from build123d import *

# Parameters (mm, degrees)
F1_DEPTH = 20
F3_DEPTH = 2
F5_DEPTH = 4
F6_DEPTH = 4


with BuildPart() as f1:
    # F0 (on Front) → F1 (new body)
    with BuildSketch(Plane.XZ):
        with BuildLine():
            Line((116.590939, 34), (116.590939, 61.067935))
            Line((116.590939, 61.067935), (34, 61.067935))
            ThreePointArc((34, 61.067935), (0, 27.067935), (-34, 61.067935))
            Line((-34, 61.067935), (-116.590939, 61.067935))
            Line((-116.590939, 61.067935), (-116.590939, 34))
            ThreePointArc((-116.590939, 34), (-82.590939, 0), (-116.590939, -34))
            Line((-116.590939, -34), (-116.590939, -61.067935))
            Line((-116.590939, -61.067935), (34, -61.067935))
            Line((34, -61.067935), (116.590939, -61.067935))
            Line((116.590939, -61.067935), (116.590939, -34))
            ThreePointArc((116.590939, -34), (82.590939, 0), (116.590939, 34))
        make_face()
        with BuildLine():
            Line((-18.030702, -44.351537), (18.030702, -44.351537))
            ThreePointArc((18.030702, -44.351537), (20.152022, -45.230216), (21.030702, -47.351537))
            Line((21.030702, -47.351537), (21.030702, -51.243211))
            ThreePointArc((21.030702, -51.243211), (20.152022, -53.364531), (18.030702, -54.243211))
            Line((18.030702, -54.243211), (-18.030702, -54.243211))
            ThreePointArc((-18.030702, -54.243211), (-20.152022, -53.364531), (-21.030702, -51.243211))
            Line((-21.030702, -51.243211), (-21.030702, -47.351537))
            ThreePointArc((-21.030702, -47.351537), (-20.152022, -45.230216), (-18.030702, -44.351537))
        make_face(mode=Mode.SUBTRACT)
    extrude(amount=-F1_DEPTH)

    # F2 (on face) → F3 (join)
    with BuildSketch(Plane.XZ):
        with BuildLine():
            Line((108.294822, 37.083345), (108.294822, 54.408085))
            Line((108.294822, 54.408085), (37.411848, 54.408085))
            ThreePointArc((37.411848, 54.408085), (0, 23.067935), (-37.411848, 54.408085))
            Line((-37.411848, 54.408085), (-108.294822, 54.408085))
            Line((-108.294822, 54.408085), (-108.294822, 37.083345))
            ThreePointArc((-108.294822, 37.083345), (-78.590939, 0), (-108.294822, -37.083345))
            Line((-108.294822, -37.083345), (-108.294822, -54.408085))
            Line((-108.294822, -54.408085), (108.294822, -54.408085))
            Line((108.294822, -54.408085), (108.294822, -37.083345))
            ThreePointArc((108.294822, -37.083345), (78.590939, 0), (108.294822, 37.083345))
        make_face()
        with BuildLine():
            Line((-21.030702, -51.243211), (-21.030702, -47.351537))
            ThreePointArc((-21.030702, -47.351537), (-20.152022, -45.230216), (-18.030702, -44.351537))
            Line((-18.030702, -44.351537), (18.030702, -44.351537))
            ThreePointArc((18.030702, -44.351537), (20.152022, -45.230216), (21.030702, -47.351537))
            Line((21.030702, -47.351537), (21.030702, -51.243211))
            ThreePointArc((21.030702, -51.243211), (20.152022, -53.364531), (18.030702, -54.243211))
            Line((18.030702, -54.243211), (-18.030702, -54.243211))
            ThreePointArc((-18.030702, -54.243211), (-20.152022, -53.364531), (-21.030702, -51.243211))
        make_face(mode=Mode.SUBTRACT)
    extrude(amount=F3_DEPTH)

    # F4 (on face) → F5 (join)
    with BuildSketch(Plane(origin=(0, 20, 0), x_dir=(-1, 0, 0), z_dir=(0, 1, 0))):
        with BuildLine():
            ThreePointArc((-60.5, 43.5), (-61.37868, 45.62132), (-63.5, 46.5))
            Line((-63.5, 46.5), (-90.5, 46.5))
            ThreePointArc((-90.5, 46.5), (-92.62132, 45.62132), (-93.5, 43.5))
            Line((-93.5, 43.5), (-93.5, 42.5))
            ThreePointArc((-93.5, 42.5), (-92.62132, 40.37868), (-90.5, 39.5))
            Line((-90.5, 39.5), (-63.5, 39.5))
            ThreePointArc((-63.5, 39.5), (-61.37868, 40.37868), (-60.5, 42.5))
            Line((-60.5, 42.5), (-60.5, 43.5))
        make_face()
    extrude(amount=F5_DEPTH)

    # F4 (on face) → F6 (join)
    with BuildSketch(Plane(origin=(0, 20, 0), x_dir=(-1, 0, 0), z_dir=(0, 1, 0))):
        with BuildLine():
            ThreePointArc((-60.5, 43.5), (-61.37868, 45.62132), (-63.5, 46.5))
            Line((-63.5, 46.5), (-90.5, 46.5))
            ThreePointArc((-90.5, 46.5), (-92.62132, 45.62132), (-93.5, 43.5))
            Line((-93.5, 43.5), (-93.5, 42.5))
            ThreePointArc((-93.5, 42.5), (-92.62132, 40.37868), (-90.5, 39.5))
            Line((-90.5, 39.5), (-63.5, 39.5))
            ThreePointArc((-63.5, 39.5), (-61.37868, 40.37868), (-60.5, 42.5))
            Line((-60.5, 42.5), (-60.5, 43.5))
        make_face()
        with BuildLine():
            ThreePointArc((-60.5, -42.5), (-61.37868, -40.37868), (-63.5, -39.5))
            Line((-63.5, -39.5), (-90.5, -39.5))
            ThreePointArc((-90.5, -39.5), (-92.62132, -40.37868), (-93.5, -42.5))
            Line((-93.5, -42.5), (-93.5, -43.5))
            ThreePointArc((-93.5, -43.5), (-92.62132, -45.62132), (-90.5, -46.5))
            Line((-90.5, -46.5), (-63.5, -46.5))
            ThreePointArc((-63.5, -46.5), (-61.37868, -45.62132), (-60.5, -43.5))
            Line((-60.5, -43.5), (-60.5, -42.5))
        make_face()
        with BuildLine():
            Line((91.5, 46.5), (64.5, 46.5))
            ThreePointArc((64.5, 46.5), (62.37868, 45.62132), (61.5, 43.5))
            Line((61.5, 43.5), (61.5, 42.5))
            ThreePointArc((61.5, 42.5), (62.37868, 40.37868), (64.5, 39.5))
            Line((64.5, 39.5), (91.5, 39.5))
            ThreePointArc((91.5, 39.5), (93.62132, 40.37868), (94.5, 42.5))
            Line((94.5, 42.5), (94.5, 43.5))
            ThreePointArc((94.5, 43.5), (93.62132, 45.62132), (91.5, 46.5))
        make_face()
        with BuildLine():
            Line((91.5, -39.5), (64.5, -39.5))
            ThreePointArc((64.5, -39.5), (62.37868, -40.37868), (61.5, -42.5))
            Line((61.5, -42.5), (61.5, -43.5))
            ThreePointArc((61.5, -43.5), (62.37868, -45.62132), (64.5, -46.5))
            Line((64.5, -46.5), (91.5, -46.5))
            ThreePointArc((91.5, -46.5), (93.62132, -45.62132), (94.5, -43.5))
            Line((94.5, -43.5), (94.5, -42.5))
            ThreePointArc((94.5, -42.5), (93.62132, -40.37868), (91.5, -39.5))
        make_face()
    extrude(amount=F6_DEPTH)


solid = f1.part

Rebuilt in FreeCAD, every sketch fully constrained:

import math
import FreeCAD as App
import Part
import Sketcher
from FreeCAD import Vector

doc = App.newDocument("Part")
params = doc.addObject("Spreadsheet::Sheet", "Params")
for row, (alias, value) in enumerate([
    ("sketch1_radius", "34 mm"),
    ("sketch1_radius2", "2.999999 mm"),
    ("pad1_length", "20 mm"),
    ("sketch2_radius", "38 mm"),
    ("sketch2_radius2", "3.000001 mm"),
    ("pad2_length", "2 mm"),
    ("sketch3_radius", "3.000001 mm"),
    ("sketch3_width", "27 mm"),
    ("sketch3_height", "1 mm"),
    ("pad3_length", "4 mm"),
    ("sketch4_radius", "3.000001 mm"),
    ("sketch4_width", "27 mm"),
    ("sketch4_height", "1 mm"),
    ("pad4_length", "4 mm"),
], start=1):
    params.set(f"A{row}", alias)
    params.set(f"B{row}", "=" + value)
    params.setAlias(f"B{row}", alias)

body = doc.addObject("PartDesign::Body", "Body")

# Sketch on XZ plane
sketch1 = doc.addObject("Sketcher::SketchObject", "Sketch")
body.addObject(sketch1)
sketch1.AttachmentSupport = (doc.XZ_Plane, [""])
sketch1.MapMode = "FlatFace"
sketch1.addGeometry([
    Part.LineSegment(Vector(116.6, 34, 0), Vector(116.6, 61.1, 0)),  # 0
    Part.LineSegment(Vector(116.6, 61.1, 0), Vector(34, 61.1, 0)),  # 1
    Part.ArcOfCircle(Part.Circle(Vector(0, 61.1, 0), Vector(0, 0, 1), 34), math.radians(180), math.radians(360)),  # 2
    Part.LineSegment(Vector(-34, 61.1, 0), Vector(-116.6, 61.1, 0)),  # 3
    Part.LineSegment(Vector(-116.6, 61.1, 0), Vector(-116.6, 34, 0)),  # 4
    Part.ArcOfCircle(Part.Circle(Vector(-116.6, 0, 0), Vector(0, 0, 1), 34), math.radians(-90), math.radians(90)),  # 5
    Part.LineSegment(Vector(-116.6, -34, 0), Vector(-116.6, -61.1, 0)),  # 6
    Part.LineSegment(Vector(-116.6, -61.1, 0), Vector(116.6, -61.1, 0)),  # 7
    Part.LineSegment(Vector(116.6, -61.1, 0), Vector(116.6, -34, 0)),  # 8
    Part.ArcOfCircle(Part.Circle(Vector(116.6, 0, 0), Vector(0, 0, 1), 34), math.radians(90), math.radians(270)),  # 9
    Part.ArcOfCircle(Part.Circle(Vector(-18, -47.4, 0), Vector(0, 0, 1), 3), math.radians(90), math.radians(180)),  # 10
    Part.LineSegment(Vector(-18, -44.4, 0), Vector(18, -44.4, 0)),  # 11
    Part.ArcOfCircle(Part.Circle(Vector(18, -47.4, 0), Vector(0, 0, 1), 3), math.radians(0), math.radians(90)),  # 12
    Part.LineSegment(Vector(21, -47.4, 0), Vector(21, -51.2, 0)),  # 13
    Part.ArcOfCircle(Part.Circle(Vector(18, -51.2, 0), Vector(0, 0, 1), 3), math.radians(-90), math.radians(0)),  # 14
    Part.LineSegment(Vector(18, -54.2, 0), Vector(-18, -54.2, 0)),  # 15
    Part.ArcOfCircle(Part.Circle(Vector(-18, -51.2, 0), Vector(0, 0, 1), 3), math.radians(-180), math.radians(-90)),  # 16
    Part.LineSegment(Vector(-21, -51.2, 0), Vector(-21, -47.4, 0)),  # 17
], False)
sketch1.addConstraint([
    Sketcher.Constraint("Coincident", 0, 2, 1, 1),
    Sketcher.Constraint("Coincident", 1, 2, 2, 2),
    Sketcher.Constraint("Coincident", 2, 1, 3, 1),
    Sketcher.Constraint("Coincident", 3, 2, 4, 1),
    Sketcher.Constraint("Coincident", 4, 2, 5, 2),
    Sketcher.Constraint("Coincident", 5, 1, 6, 1),
    Sketcher.Constraint("Coincident", 6, 2, 7, 1),
    Sketcher.Constraint("Coincident", 7, 2, 8, 1),
    Sketcher.Constraint("Coincident", 8, 2, 9, 2),
    Sketcher.Constraint("Coincident", 9, 1, 0, 1),
    Sketcher.Constraint("Tangent", 10, 1, 11, 1),
    Sketcher.Constraint("Tangent", 11, 2, 12, 2),
    Sketcher.Constraint("Tangent", 12, 1, 13, 1),
    Sketcher.Constraint("Tangent", 13, 2, 14, 2),
    Sketcher.Constraint("Tangent", 14, 1, 15, 1),
    Sketcher.Constraint("Tangent", 15, 2, 16, 2),
    Sketcher.Constraint("Tangent", 16, 1, 17, 1),
    Sketcher.Constraint("Tangent", 17, 2, 10, 2),
    Sketcher.Constraint("Vertical", 0),
    Sketcher.Constraint("Horizontal", 1),
    Sketcher.Constraint("Horizontal", 3),
    Sketcher.Constraint("Vertical", 4),
    Sketcher.Constraint("Vertical", 6),
    Sketcher.Constraint("Horizontal", 7),
    Sketcher.Constraint("Vertical", 8),
    Sketcher.Constraint("Horizontal", 11),
    Sketcher.Constraint("Vertical", 13),
    Sketcher.Constraint("Horizontal", 15),
    Sketcher.Constraint("Vertical", 17),
    Sketcher.Constraint("Equal", 2, 5),
    Sketcher.Constraint("Equal", 5, 9),
    Sketcher.Constraint("Equal", 10, 12),
    Sketcher.Constraint("Equal", 12, 14),
    Sketcher.Constraint("Equal", 14, 16),
    Sketcher.Constraint("Symmetric", 5, 3, 9, 3, -1, 1),
    Sketcher.Constraint("Symmetric", 0, 2, 6, 2, -1, 1),
    Sketcher.Constraint("Symmetric", 3, 2, 7, 2, -1, 1),
    Sketcher.Constraint("Symmetric", 5, 1, 8, 2, -2),
    Sketcher.Constraint("PointOnObject", 2, 3, -2),
    Sketcher.Constraint("Horizontal", 2, 3, 0, 2),
    Sketcher.Constraint("Vertical", 9, 3, 0, 2),
    Sketcher.Constraint("Radius", 2, 34.0),
    Sketcher.Constraint("Radius", 10, 2.999999),
    Sketcher.Constraint("DistanceX", 1, 2, 1, 1, 82.590939),
    Sketcher.Constraint("DistanceX", -1, 1, 14, 3, 18.030701),
    Sketcher.Constraint("DistanceX", 16, 3, -1, 1, 18.030701),
    Sketcher.Constraint("DistanceY", 6, 2, 10, 3, 13.716399),
    Sketcher.Constraint("DistanceY", 0, 1, 0, 2, 27.067935),
    Sketcher.Constraint("DistanceY", 13, 2, 13, 1, 3.891674),
])
sketch1.setExpression("Constraints[41]", "Params.sketch1_radius")
sketch1.setExpression("Constraints[42]", "Params.sketch1_radius2")
pad1 = doc.addObject("PartDesign::Pad", "Pad")
body.addObject(pad1)
pad1.Profile = sketch1
pad1.setExpression("Length", "Params.pad1_length")
pad1.Reversed = True

# Sketch on XZ plane
sketch2 = doc.addObject("Sketcher::SketchObject", "Sketch001")
body.addObject(sketch2)
sketch2.AttachmentSupport = (doc.XZ_Plane, [""])
sketch2.MapMode = "FlatFace"
sketch2.addGeometry([
    Part.LineSegment(Vector(108.3, 37.1, 0), Vector(108.3, 54.4, 0)),  # 0
    Part.LineSegment(Vector(108.3, 54.4, 0), Vector(37.4, 54.4, 0)),  # 1
    Part.ArcOfCircle(Part.Circle(Vector(0, 61.1, 0), Vector(0, 0, 1), 38), math.radians(-170), math.radians(-10)),  # 2
    Part.LineSegment(Vector(-37.4, 54.4, 0), Vector(-108.3, 54.4, 0)),  # 3
    Part.LineSegment(Vector(-108.3, 54.4, 0), Vector(-108.3, 37.1, 0)),  # 4
    Part.ArcOfCircle(Part.Circle(Vector(-116.6, 0, 0), Vector(0, 0, 1), 38), math.radians(-77), math.radians(77)),  # 5
    Part.LineSegment(Vector(-108.3, -37.1, 0), Vector(-108.3, -54.4, 0)),  # 6
    Part.LineSegment(Vector(-108.3, -54.4, 0), Vector(108.3, -54.4, 0)),  # 7
    Part.LineSegment(Vector(108.3, -54.4, 0), Vector(108.3, -37.1, 0)),  # 8
    Part.ArcOfCircle(Part.Circle(Vector(116.6, 0, 0), Vector(0, 0, 1), 38), math.radians(103), math.radians(257)),  # 9
    Part.ArcOfCircle(Part.Circle(Vector(-18, -51.2, 0), Vector(0, 0, 1), 3), math.radians(-180), math.radians(-90)),  # 10
    Part.LineSegment(Vector(-21, -51.2, 0), Vector(-21, -47.4, 0)),  # 11
    Part.ArcOfCircle(Part.Circle(Vector(-18, -47.4, 0), Vector(0, 0, 1), 3), math.radians(90), math.radians(180)),  # 12
    Part.LineSegment(Vector(-18, -44.4, 0), Vector(18, -44.4, 0)),  # 13
    Part.ArcOfCircle(Part.Circle(Vector(18, -47.4, 0), Vector(0, 0, 1), 3), math.radians(0), math.radians(90)),  # 14
    Part.LineSegment(Vector(21, -47.4, 0), Vector(21, -51.2, 0)),  # 15
    Part.ArcOfCircle(Part.Circle(Vector(18, -51.2, 0), Vector(0, 0, 1), 3), math.radians(-90), math.radians(0)),  # 16
    Part.LineSegment(Vector(18, -54.2, 0), Vector(-18, -54.2, 0)),  # 17
], False)
sketch2.addConstraint([
    Sketcher.Constraint("Coincident", 0, 2, 1, 1),
    Sketcher.Constraint("Coincident", 1, 2, 2, 2),
    Sketcher.Constraint("Coincident", 2, 1, 3, 1),
    Sketcher.Constraint("Coincident", 3, 2, 4, 1),
    Sketcher.Constraint("Coincident", 4, 2, 5, 2),
    Sketcher.Constraint("Coincident", 5, 1, 6, 1),
    Sketcher.Constraint("Coincident", 6, 2, 7, 1),
    Sketcher.Constraint("Coincident", 7, 2, 8, 1),
    Sketcher.Constraint("Coincident", 8, 2, 9, 2),
    Sketcher.Constraint("Coincident", 9, 1, 0, 1),
    Sketcher.Constraint("Tangent", 10, 1, 11, 1),
    Sketcher.Constraint("Tangent", 11, 2, 12, 2),
    Sketcher.Constraint("Tangent", 12, 1, 13, 1),
    Sketcher.Constraint("Tangent", 13, 2, 14, 2),
    Sketcher.Constraint("Tangent", 14, 1, 15, 1),
    Sketcher.Constraint("Tangent", 15, 2, 16, 2),
    Sketcher.Constraint("Tangent", 16, 1, 17, 1),
    Sketcher.Constraint("Tangent", 17, 2, 10, 2),
    Sketcher.Constraint("Vertical", 0),
    Sketcher.Constraint("Horizontal", 1),
    Sketcher.Constraint("Horizontal", 3),
    Sketcher.Constraint("Vertical", 4),
    Sketcher.Constraint("Vertical", 6),
    Sketcher.Constraint("Horizontal", 7),
    Sketcher.Constraint("Vertical", 8),
    Sketcher.Constraint("Vertical", 11),
    Sketcher.Constraint("Horizontal", 13),
    Sketcher.Constraint("Vertical", 15),
    Sketcher.Constraint("Horizontal", 17),
    Sketcher.Constraint("Equal", 2, 5),
    Sketcher.Constraint("Equal", 5, 9),
    Sketcher.Constraint("Equal", 10, 12),
    Sketcher.Constraint("Equal", 12, 14),
    Sketcher.Constraint("Equal", 14, 16),
    Sketcher.Constraint("Symmetric", 5, 3, 9, 3, -1, 1),
    Sketcher.Constraint("Symmetric", 0, 2, 6, 2, -1, 1),
    Sketcher.Constraint("Symmetric", 3, 2, 7, 2, -1, 1),
    Sketcher.Constraint("Symmetric", 5, 1, 8, 2, -2),
    Sketcher.Constraint("PointOnObject", 2, 3, -2),
    Sketcher.Constraint("Radius", 2, 38.0),
    Sketcher.Constraint("Radius", 10, 3.000001),
    Sketcher.Constraint("DistanceY", 0, 1, 0, 2, 17.32474),
    Sketcher.Constraint("DistanceX", 10, 3, -1, 1, 18.030701),
    Sketcher.Constraint("DistanceX", -1, 1, 16, 3, 18.030701),
    Sketcher.Constraint("DistanceX", 1, 2, 1, 1, 70.882974),
    Sketcher.Constraint("DistanceX", 7, 1, 7, 2, 216.589644),
    Sketcher.Constraint("DistanceY", 11, 1, 11, 2, 3.891674),
    Sketcher.Constraint("DistanceX", 5, 3, -1, 1, 116.59094),
    Sketcher.Constraint("DistanceY", 10, 3, -1, 1, 51.24321),
])
sketch2.setExpression("Constraints[39]", "Params.sketch2_radius")
sketch2.setExpression("Constraints[40]", "Params.sketch2_radius2")
pad2 = doc.addObject("PartDesign::Pad", "Pad001")
body.addObject(pad2)
pad2.Profile = sketch2
pad2.setExpression("Length", "Params.pad2_length")

# Sketch on XZ plane
sketch3 = doc.addObject("Sketcher::SketchObject", "Sketch002")
body.addObject(sketch3)
sketch3.AttachmentSupport = (doc.XZ_Plane, [""])
sketch3.MapMode = "FlatFace"
sketch3.AttachmentOffset = App.Placement(Vector(0, 0, -20), App.Rotation())
sketch3.addGeometry([
    Part.ArcOfCircle(Part.Circle(Vector(63.5, 43.5, 0), Vector(0, 0, 1), 3), math.radians(90), math.radians(180)),  # 0
    Part.LineSegment(Vector(63.5, 46.5, 0), Vector(90.5, 46.5, 0)),  # 1
    Part.ArcOfCircle(Part.Circle(Vector(90.5, 43.5, 0), Vector(0, 0, 1), 3), math.radians(0), math.radians(90)),  # 2
    Part.LineSegment(Vector(93.5, 43.5, 0), Vector(93.5, 42.5, 0)),  # 3
    Part.ArcOfCircle(Part.Circle(Vector(90.5, 42.5, 0), Vector(0, 0, 1), 3), math.radians(-90), math.radians(0)),  # 4
    Part.LineSegment(Vector(90.5, 39.5, 0), Vector(63.5, 39.5, 0)),  # 5
    Part.ArcOfCircle(Part.Circle(Vector(63.5, 42.5, 0), Vector(0, 0, 1), 3), math.radians(-180), math.radians(-90)),  # 6
    Part.LineSegment(Vector(60.5, 42.5, 0), Vector(60.5, 43.5, 0)),  # 7
], False)
sketch3.addConstraint([
    Sketcher.Constraint("Tangent", 0, 1, 1, 1),
    Sketcher.Constraint("Tangent", 1, 2, 2, 2),
    Sketcher.Constraint("Tangent", 2, 1, 3, 1),
    Sketcher.Constraint("Tangent", 3, 2, 4, 2),
    Sketcher.Constraint("Tangent", 4, 1, 5, 1),
    Sketcher.Constraint("Tangent", 5, 2, 6, 2),
    Sketcher.Constraint("Tangent", 6, 1, 7, 1),
    Sketcher.Constraint("Tangent", 7, 2, 0, 2),
    Sketcher.Constraint("Horizontal", 1),
    Sketcher.Constraint("Vertical", 3),
    Sketcher.Constraint("Horizontal", 5),
    Sketcher.Constraint("Vertical", 7),
    Sketcher.Constraint("Equal", 0, 2),
    Sketcher.Constraint("Equal", 2, 4),
    Sketcher.Constraint("Equal", 4, 6),
    Sketcher.Constraint("Radius", 0, 3.000001),
    Sketcher.Constraint("DistanceX", 1, 1, 1, 2, 27.0),
    Sketcher.Constraint("DistanceY", 3, 2, 3, 1, 1.0),
    Sketcher.Constraint("DistanceX", -1, 1, 0, 3, 63.500001),
    Sketcher.Constraint("DistanceY", -1, 1, 0, 3, 43.499999),
])
sketch3.setExpression("Constraints[15]", "Params.sketch3_radius")
sketch3.setExpression("Constraints[16]", "Params.sketch3_width")
sketch3.setExpression("Constraints[17]", "Params.sketch3_height")
pad3 = doc.addObject("PartDesign::Pad", "Pad002")
body.addObject(pad3)
pad3.Profile = sketch3
pad3.setExpression("Length", "Params.pad3_length")
pad3.Reversed = True

# Sketch on XZ plane
sketch4 = doc.addObject("Sketcher::SketchObject", "Sketch003")
body.addObject(sketch4)
sketch4.AttachmentSupport = (doc.XZ_Plane, [""])
sketch4.MapMode = "FlatFace"
sketch4.AttachmentOffset = App.Placement(Vector(0, 0, -20), App.Rotation())
sketch4.addGeometry([
    Part.ArcOfCircle(Part.Circle(Vector(63.5, 43.5, 0), Vector(0, 0, 1), 3), math.radians(90), math.radians(180)),  # 0
    Part.LineSegment(Vector(63.5, 46.5, 0), Vector(90.5, 46.5, 0)),  # 1
    Part.ArcOfCircle(Part.Circle(Vector(90.5, 43.5, 0), Vector(0, 0, 1), 3), math.radians(0), math.radians(90)),  # 2
    Part.LineSegment(Vector(93.5, 43.5, 0), Vector(93.5, 42.5, 0)),  # 3
    Part.ArcOfCircle(Part.Circle(Vector(90.5, 42.5, 0), Vector(0, 0, 1), 3), math.radians(-90), math.radians(0)),  # 4
    Part.LineSegment(Vector(90.5, 39.5, 0), Vector(63.5, 39.5, 0)),  # 5
    Part.ArcOfCircle(Part.Circle(Vector(63.5, 42.5, 0), Vector(0, 0, 1), 3), math.radians(-180), math.radians(-90)),  # 6
    Part.LineSegment(Vector(60.5, 42.5, 0), Vector(60.5, 43.5, 0)),  # 7
    Part.ArcOfCircle(Part.Circle(Vector(63.5, -42.5, 0), Vector(0, 0, 1), 3), math.radians(90), math.radians(180)),  # 8
    Part.LineSegment(Vector(63.5, -39.5, 0), Vector(90.5, -39.5, 0)),  # 9
    Part.ArcOfCircle(Part.Circle(Vector(90.5, -42.5, 0), Vector(0, 0, 1), 3), math.radians(0), math.radians(90)),  # 10
    Part.LineSegment(Vector(93.5, -42.5, 0), Vector(93.5, -43.5, 0)),  # 11
    Part.ArcOfCircle(Part.Circle(Vector(90.5, -43.5, 0), Vector(0, 0, 1), 3), math.radians(-90), math.radians(0)),  # 12
    Part.LineSegment(Vector(90.5, -46.5, 0), Vector(63.5, -46.5, 0)),  # 13
    Part.ArcOfCircle(Part.Circle(Vector(63.5, -43.5, 0), Vector(0, 0, 1), 3), math.radians(-180), math.radians(-90)),  # 14
    Part.LineSegment(Vector(60.5, -43.5, 0), Vector(60.5, -42.5, 0)),  # 15
    Part.LineSegment(Vector(-91.5, 46.5, 0), Vector(-64.5, 46.5, 0)),  # 16
    Part.ArcOfCircle(Part.Circle(Vector(-64.5, 43.5, 0), Vector(0, 0, 1), 3), math.radians(0), math.radians(90)),  # 17
    Part.LineSegment(Vector(-61.5, 43.5, 0), Vector(-61.5, 42.5, 0)),  # 18
    Part.ArcOfCircle(Part.Circle(Vector(-64.5, 42.5, 0), Vector(0, 0, 1), 3), math.radians(-90), math.radians(0)),  # 19
    Part.LineSegment(Vector(-64.5, 39.5, 0), Vector(-91.5, 39.5, 0)),  # 20
    Part.ArcOfCircle(Part.Circle(Vector(-91.5, 42.5, 0), Vector(0, 0, 1), 3), math.radians(-180), math.radians(-90)),  # 21
    Part.LineSegment(Vector(-94.5, 42.5, 0), Vector(-94.5, 43.5, 0)),  # 22
    Part.ArcOfCircle(Part.Circle(Vector(-91.5, 43.5, 0), Vector(0, 0, 1), 3), math.radians(90), math.radians(180)),  # 23
    Part.LineSegment(Vector(-91.5, -39.5, 0), Vector(-64.5, -39.5, 0)),  # 24
    Part.ArcOfCircle(Part.Circle(Vector(-64.5, -42.5, 0), Vector(0, 0, 1), 3), math.radians(0), math.radians(90)),  # 25
    Part.LineSegment(Vector(-61.5, -42.5, 0), Vector(-61.5, -43.5, 0)),  # 26
    Part.ArcOfCircle(Part.Circle(Vector(-64.5, -43.5, 0), Vector(0, 0, 1), 3), math.radians(-90), math.radians(0)),  # 27
    Part.LineSegment(Vector(-64.5, -46.5, 0), Vector(-91.5, -46.5, 0)),  # 28
    Part.ArcOfCircle(Part.Circle(Vector(-91.5, -43.5, 0), Vector(0, 0, 1), 3), math.radians(-180), math.radians(-90)),  # 29
    Part.LineSegment(Vector(-94.5, -43.5, 0), Vector(-94.5, -42.5, 0)),  # 30
    Part.ArcOfCircle(Part.Circle(Vector(-91.5, -42.5, 0), Vector(0, 0, 1), 3), math.radians(90), math.radians(180)),  # 31
], False)
sketch4.addConstraint([
    Sketcher.Constraint("Tangent", 0, 1, 1, 1),
    Sketcher.Constraint("Tangent", 1, 2, 2, 2),
    Sketcher.Constraint("Tangent", 2, 1, 3, 1),
    Sketcher.Constraint("Tangent", 3, 2, 4, 2),
    Sketcher.Constraint("Tangent", 4, 1, 5, 1),
    Sketcher.Constraint("Tangent", 5, 2, 6, 2),
    Sketcher.Constraint("Tangent", 6, 1, 7, 1),
    Sketcher.Constraint("Tangent", 7, 2, 0, 2),
    Sketcher.Constraint("Tangent", 8, 1, 9, 1),
    Sketcher.Constraint("Tangent", 9, 2, 10, 2),
    Sketcher.Constraint("Tangent", 10, 1, 11, 1),
    Sketcher.Constraint("Tangent", 11, 2, 12, 2),
    Sketcher.Constraint("Tangent", 12, 1, 13, 1),
    Sketcher.Constraint("Tangent", 13, 2, 14, 2),
    Sketcher.Constraint("Tangent", 14, 1, 15, 1),
    Sketcher.Constraint("Tangent", 15, 2, 8, 2),
    Sketcher.Constraint("Tangent", 16, 2, 17, 2),
    Sketcher.Constraint("Tangent", 17, 1, 18, 1),
    Sketcher.Constraint("Tangent", 18, 2, 19, 2),
    Sketcher.Constraint("Tangent", 19, 1, 20, 1),
    Sketcher.Constraint("Tangent", 20, 2, 21, 2),
    Sketcher.Constraint("Tangent", 21, 1, 22, 1),
    Sketcher.Constraint("Tangent", 22, 2, 23, 2),
    Sketcher.Constraint("Tangent", 23, 1, 16, 1),
    Sketcher.Constraint("Tangent", 24, 2, 25, 2),
    Sketcher.Constraint("Tangent", 25, 1, 26, 1),
    Sketcher.Constraint("Tangent", 26, 2, 27, 2),
    Sketcher.Constraint("Tangent", 27, 1, 28, 1),
    Sketcher.Constraint("Tangent", 28, 2, 29, 2),
    Sketcher.Constraint("Tangent", 29, 1, 30, 1),
    Sketcher.Constraint("Tangent", 30, 2, 31, 2),
    Sketcher.Constraint("Tangent", 31, 1, 24, 1),
    Sketcher.Constraint("Horizontal", 1),
    Sketcher.Constraint("Vertical", 3),
    Sketcher.Constraint("Horizontal", 5),
    Sketcher.Constraint("Vertical", 7),
    Sketcher.Constraint("Horizontal", 9),
    Sketcher.Constraint("Vertical", 11),
    Sketcher.Constraint("Horizontal", 13),
    Sketcher.Constraint("Vertical", 15),
    Sketcher.Constraint("Horizontal", 16),
    Sketcher.Constraint("Vertical", 18),
    Sketcher.Constraint("Horizontal", 20),
    Sketcher.Constraint("Vertical", 22),
    Sketcher.Constraint("Horizontal", 24),
    Sketcher.Constraint("Vertical", 26),
    Sketcher.Constraint("Horizontal", 28),
    Sketcher.Constraint("Vertical", 30),
    Sketcher.Constraint("Equal", 0, 2),
    Sketcher.Constraint("Equal", 2, 4),
    Sketcher.Constraint("Equal", 4, 6),
    Sketcher.Constraint("Equal", 6, 8),
    Sketcher.Constraint("Equal", 8, 10),
    Sketcher.Constraint("Equal", 10, 12),
    Sketcher.Constraint("Equal", 12, 14),
    Sketcher.Constraint("Equal", 14, 17),
    Sketcher.Constraint("Equal", 17, 19),
    Sketcher.Constraint("Equal", 19, 21),
    Sketcher.Constraint("Equal", 21, 23),
    Sketcher.Constraint("Equal", 23, 25),
    Sketcher.Constraint("Equal", 25, 27),
    Sketcher.Constraint("Equal", 27, 29),
    Sketcher.Constraint("Equal", 29, 31),
    Sketcher.Constraint("Symmetric", 6, 3, 8, 3, -1),
    Sketcher.Constraint("Symmetric", 2, 3, 12, 3, -1),
    Sketcher.Constraint("Symmetric", 19, 3, 25, 3, -1),
    Sketcher.Constraint("Symmetric", 23, 3, 29, 3, -1),
    Sketcher.Constraint("Horizontal", 2, 3, 17, 3),
    Sketcher.Constraint("Horizontal", 6, 3, 19, 3),
    Sketcher.Constraint("Equal", 13, 16),
    Sketcher.Constraint("Radius", 0, 3.000001),
    Sketcher.Constraint("DistanceX", 1, 1, 1, 2, 27.0),
    Sketcher.Constraint("DistanceY", 3, 2, 3, 1, 1.0),
    Sketcher.Constraint("DistanceY", 8, 3, 0, 3, 86.0),
    Sketcher.Constraint("DistanceX", 17, 3, 2, 3, 155.0),
    Sketcher.Constraint("DistanceX", -1, 1, 0, 3, 63.500001),
])
sketch4.setExpression("Constraints[70]", "Params.sketch4_radius")
sketch4.setExpression("Constraints[71]", "Params.sketch4_width")
sketch4.setExpression("Constraints[72]", "Params.sketch4_height")
pad4 = doc.addObject("PartDesign::Pad", "Pad003")
body.addObject(pad4)
pad4.Profile = sketch4
pad4.setExpression("Length", "Params.pad4_length")
pad4.Reversed = True

doc.recompute()
